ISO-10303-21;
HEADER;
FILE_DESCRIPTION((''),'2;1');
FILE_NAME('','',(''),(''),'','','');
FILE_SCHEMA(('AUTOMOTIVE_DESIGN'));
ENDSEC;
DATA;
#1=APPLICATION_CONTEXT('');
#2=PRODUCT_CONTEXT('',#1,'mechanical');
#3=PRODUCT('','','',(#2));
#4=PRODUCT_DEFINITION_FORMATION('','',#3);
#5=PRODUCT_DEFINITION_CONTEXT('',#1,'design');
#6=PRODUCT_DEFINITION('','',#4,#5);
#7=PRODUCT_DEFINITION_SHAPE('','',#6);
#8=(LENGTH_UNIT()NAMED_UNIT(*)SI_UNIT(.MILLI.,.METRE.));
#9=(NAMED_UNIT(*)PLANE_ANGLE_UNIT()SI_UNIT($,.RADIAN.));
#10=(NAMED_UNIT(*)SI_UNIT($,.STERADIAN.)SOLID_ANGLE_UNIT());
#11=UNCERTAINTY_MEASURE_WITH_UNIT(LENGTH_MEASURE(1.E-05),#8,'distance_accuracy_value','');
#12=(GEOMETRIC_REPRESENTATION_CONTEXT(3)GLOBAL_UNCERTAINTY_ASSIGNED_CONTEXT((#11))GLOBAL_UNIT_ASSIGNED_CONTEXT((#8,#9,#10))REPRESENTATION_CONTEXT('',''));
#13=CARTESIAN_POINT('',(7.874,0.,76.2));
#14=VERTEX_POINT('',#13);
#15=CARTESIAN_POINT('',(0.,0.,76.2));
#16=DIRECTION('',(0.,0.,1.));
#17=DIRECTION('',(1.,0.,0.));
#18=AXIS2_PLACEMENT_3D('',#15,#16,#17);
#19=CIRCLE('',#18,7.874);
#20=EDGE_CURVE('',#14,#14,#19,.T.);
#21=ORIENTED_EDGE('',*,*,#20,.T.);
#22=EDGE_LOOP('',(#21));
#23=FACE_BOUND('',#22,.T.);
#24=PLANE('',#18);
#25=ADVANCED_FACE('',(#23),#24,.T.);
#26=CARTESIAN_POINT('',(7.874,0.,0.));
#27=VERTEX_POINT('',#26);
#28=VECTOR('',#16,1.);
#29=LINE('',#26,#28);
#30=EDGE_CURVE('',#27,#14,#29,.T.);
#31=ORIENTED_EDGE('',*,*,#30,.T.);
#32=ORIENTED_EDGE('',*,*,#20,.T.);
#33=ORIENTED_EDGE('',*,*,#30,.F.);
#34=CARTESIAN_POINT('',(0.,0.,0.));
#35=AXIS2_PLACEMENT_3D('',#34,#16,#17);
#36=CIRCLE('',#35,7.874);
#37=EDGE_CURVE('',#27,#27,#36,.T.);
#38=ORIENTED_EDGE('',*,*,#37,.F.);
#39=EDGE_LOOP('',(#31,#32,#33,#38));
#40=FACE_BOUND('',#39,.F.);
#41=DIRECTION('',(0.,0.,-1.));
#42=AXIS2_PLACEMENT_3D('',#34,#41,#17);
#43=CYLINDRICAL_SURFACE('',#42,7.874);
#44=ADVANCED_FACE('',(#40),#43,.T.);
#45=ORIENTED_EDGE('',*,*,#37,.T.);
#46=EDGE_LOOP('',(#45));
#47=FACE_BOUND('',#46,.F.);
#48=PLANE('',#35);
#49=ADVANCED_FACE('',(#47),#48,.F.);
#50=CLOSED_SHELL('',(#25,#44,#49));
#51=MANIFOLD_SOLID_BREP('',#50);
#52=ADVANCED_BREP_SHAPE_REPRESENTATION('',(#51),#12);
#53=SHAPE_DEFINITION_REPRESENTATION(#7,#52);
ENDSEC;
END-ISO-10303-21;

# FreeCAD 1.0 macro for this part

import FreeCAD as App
import Part
import Sketcher

V = App.Vector
Q = App.Units.Quantity

doc = App.newDocument("Part")
params = doc.addObject("Spreadsheet::Sheet", "Params")
for row, (alias, value) in enumerate([
    ("sketch1_diameter", "0.62 in"),
    ("pad1_length", "3 in"),
], start=1):
    params.set(f"A{row}", alias)
    params.set(f"B{row}", "=" + value)
    params.setAlias(f"B{row}", alias)

body = doc.addObject("PartDesign::Body", "Body")

# Sketch on XY plane
sketch1 = body.newObject("Sketcher::SketchObject", "Sketch")
sketch1.AttachmentSupport = (doc.getObject("XY_Plane"), [""])
sketch1.MapMode = "FlatFace"
sketch1.addGeometry(Part.Circle(V(0, 0, 0), V(0, 0, 1), 8), False)
sketch1.addConstraint(Sketcher.Constraint("Coincident", 0, 3, -1, 1))
sketch1.addConstraint(Sketcher.Constraint("Diameter", 0, Q("0.62 in")))
sketch1.setExpression("Constraints[1]", "Params.sketch1_diameter")
pad1 = body.newObject("PartDesign::Pad", "Pad")
pad1.Profile = sketch1
pad1.setExpression("Length", "Params.pad1_length")

doc.recompute()
